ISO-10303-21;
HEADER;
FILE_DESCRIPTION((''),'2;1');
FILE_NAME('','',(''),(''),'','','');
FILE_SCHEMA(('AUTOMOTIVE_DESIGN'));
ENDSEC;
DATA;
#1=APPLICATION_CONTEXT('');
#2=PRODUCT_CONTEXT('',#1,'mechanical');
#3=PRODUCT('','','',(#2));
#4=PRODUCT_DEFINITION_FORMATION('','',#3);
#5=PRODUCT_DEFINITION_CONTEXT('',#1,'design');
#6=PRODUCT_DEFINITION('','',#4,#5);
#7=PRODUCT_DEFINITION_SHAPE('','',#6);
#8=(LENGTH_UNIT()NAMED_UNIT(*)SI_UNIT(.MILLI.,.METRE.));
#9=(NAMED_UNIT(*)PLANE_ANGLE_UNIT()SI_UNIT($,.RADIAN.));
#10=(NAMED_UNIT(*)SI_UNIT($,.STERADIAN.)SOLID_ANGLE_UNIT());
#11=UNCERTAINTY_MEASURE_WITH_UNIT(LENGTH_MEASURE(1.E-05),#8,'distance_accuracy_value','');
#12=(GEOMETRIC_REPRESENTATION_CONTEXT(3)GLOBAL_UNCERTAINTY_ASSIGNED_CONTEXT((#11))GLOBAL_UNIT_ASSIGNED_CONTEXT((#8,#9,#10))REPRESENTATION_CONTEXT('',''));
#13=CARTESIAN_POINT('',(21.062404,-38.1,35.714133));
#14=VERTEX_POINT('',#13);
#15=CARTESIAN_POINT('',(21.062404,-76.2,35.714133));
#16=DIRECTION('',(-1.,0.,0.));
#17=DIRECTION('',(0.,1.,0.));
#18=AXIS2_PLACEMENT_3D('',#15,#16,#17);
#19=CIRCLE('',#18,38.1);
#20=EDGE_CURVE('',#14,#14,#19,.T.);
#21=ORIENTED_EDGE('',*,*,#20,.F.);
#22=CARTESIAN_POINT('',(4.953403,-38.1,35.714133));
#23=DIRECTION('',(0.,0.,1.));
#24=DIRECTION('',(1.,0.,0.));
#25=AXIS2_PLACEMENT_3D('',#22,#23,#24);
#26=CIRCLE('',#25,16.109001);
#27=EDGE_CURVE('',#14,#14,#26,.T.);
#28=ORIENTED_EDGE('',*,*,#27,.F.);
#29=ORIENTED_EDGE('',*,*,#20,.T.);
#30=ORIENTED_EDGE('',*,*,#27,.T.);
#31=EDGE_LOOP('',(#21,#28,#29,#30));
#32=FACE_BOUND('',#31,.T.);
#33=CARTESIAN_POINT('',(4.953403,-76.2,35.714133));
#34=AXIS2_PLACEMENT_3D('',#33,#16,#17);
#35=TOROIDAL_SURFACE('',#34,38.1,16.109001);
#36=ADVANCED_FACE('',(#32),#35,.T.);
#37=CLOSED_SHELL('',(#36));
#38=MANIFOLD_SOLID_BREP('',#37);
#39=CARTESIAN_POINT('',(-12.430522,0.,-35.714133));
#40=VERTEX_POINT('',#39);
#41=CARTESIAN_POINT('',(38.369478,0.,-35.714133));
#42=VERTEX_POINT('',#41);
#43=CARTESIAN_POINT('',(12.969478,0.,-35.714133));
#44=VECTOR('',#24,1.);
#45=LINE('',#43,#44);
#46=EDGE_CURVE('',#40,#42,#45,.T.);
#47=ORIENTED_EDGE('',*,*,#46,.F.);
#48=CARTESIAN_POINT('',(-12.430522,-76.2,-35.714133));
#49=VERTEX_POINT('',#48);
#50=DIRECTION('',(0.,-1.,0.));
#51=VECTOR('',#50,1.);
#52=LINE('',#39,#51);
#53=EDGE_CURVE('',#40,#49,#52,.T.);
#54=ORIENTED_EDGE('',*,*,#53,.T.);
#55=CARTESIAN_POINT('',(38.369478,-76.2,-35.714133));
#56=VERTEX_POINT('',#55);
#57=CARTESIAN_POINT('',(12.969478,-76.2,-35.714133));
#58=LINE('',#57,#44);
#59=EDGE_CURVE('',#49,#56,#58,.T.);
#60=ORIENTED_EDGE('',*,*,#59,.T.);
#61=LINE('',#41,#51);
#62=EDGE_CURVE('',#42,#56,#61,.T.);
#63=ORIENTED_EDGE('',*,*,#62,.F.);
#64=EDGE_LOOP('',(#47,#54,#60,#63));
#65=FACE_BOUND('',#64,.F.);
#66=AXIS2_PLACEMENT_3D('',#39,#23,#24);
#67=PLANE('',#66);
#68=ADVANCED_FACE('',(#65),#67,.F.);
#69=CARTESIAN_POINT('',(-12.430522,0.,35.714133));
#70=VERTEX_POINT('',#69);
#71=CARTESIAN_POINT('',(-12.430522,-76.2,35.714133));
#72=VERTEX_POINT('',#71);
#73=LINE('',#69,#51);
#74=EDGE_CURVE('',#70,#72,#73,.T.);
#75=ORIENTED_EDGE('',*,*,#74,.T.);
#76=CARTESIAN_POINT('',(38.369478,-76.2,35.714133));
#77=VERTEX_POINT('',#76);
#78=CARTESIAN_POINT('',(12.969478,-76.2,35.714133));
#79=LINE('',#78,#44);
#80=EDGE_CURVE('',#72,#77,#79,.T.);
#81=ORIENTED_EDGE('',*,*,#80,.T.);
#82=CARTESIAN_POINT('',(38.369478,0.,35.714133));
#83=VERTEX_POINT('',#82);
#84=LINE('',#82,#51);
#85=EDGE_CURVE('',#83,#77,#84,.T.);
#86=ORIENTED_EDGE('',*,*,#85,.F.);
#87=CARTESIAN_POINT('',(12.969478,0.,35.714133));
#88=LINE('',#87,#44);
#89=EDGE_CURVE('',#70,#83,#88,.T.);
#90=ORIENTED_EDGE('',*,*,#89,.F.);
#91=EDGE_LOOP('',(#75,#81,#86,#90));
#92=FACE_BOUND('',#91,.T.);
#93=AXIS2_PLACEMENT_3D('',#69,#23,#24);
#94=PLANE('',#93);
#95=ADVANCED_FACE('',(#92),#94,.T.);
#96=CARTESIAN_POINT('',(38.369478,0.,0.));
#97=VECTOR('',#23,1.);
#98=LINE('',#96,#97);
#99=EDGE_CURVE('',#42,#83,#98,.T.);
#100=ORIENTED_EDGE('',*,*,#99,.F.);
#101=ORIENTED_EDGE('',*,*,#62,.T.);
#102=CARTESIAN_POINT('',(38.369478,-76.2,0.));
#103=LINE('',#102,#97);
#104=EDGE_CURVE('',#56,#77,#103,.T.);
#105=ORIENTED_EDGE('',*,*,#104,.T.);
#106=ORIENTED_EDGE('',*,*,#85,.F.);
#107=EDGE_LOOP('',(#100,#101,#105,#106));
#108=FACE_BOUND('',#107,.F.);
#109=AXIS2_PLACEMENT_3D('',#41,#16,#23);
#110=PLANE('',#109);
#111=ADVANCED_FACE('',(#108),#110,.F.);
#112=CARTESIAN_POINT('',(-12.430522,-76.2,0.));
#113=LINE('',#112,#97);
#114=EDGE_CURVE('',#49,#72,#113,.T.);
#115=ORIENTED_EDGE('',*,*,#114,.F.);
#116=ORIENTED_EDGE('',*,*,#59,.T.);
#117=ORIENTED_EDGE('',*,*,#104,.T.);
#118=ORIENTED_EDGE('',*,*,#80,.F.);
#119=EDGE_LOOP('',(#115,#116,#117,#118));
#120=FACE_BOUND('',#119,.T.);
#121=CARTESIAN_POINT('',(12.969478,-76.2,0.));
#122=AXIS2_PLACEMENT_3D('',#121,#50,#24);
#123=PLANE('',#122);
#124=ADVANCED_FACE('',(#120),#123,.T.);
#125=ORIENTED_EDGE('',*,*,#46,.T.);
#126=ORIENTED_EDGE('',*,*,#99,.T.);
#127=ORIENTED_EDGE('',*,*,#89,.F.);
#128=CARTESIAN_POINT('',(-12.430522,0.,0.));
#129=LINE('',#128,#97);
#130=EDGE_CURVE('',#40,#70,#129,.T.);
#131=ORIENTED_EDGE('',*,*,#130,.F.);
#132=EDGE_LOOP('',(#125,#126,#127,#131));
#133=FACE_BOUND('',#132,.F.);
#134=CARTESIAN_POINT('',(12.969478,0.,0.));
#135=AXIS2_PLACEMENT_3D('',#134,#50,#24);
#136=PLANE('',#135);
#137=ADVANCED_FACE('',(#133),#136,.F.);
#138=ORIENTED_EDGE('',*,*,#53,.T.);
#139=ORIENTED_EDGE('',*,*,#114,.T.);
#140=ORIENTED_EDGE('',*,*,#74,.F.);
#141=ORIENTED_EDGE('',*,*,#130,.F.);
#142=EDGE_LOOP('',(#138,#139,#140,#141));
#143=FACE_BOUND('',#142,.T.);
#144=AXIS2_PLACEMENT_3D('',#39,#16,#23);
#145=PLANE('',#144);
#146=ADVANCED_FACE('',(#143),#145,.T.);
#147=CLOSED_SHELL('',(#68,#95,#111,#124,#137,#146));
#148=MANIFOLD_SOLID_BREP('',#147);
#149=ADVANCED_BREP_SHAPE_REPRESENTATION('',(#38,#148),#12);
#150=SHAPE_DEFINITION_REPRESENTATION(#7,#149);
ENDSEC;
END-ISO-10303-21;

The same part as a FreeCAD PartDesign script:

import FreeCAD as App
import Part
import Sketcher
from FreeCAD import Vector
Q = App.Units.Quantity


def add_polygon(sketch, points):
    """Adds a closed chain of lines whose ends are joined by coincident constraints."""
    first, n = sketch.GeometryCount, len(points)
    for a, b in zip(points, points[1:] + points[:1]):
        sketch.addGeometry(Part.LineSegment(App.Vector(*a, 0), App.Vector(*b, 0)), False)
    for i in range(n):
        sketch.addConstraint(Sketcher.Constraint("Coincident", first + i, 2, first + (i + 1) % n, 1))

doc = App.newDocument("Part")
body = doc.addObject("PartDesign::Body", "Body")

# Sketch on XZ plane
sketch1 = body.newObject("Sketcher::SketchObject", "Sketch")
sketch1.AttachmentSupport = (doc.getObject("XZ_Plane"), [""])
sketch1.MapMode = "FlatFace"
add_polygon(sketch1, [(-12, 36), (-12, -36), (38, -36), (38, 36)])  # lines 0-3
sketch1.addConstraint([
    Sketcher.Constraint("Vertical", 0),
    Sketcher.Constraint("Horizontal", 1),
    Sketcher.Constraint("Vertical", 2),
    Sketcher.Constraint("Horizontal", 3),
    Sketcher.Constraint("DistanceX", 1, 1, 1, 2, Q("2 in")),
    Sketcher.Constraint("DistanceY", 0, 2, 0, 1, 71.428267),
    Sketcher.Constraint("DistanceX", 0, 2, -1, 1, 12.430522),
    Sketcher.Constraint("DistanceY", 0, 2, -1, 1, 35.714133),
])
pad1 = body.newObject("PartDesign::Pad", "Pad")
pad1.Profile = sketch1
pad1.Length = Q("3 in")
body2 = doc.addObject("PartDesign::Body", "Body001")

# Sketch on XY plane
sketch2 = body2.newObject("Sketcher::SketchObject", "Sketch001")
sketch2.AttachmentSupport = (doc.getObject("XY_Plane001"), [""])
sketch2.MapMode = "FlatFace"
sketch2.AttachmentOffset = App.Placement(Vector(0, 0, 35.714133), App.Rotation())
sketch2.addGeometry(Part.Circle(Vector(5, -38, 0), Vector(0, 0, 1), 16), False)
sketch2.addGeometry(Part.LineSegment(Vector(5, -76, 0), Vector(-5, -76, 0)), True)  # axis
sketch2.addConstraint([
    Sketcher.Constraint("Horizontal", 1),
    Sketcher.Constraint("Vertical", 0, 3, 1, 1),
    Sketcher.Constraint("DistanceY", 1, 1, -1, 1, Q("3 in")),
    Sketcher.Constraint("DistanceY", 0, 3, -1, 1, Q("1.5 in")),
    Sketcher.Constraint("Diameter", 0, 32.218002),
    Sketcher.Constraint("DistanceX", 1, 2, 1, 1, 10.0),
    Sketcher.Constraint("DistanceX", -1, 1, 0, 3, 4.953403),
])
revolution = body2.newObject("PartDesign::Revolution", "Revolution")
revolution.Profile = sketch2
revolution.ReferenceAxis = (sketch2, ["Axis0"])
revolution.Angle = 360

doc.recompute()
